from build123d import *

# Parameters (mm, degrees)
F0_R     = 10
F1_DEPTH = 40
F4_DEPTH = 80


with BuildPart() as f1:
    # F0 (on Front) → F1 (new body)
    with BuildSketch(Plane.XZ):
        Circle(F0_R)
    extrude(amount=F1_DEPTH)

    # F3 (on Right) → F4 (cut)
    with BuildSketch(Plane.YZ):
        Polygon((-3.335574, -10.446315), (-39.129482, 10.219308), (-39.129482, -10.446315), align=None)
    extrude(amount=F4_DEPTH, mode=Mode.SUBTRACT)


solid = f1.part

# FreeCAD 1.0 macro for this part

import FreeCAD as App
import Part
import Sketcher

V = App.Vector
Q = App.Units.Quantity

doc = App.newDocument("Part")
params = doc.addObject("Spreadsheet::Sheet", "Params")
for row, (alias, value) in enumerate([
    ("sketch1_diameter", "20 mm"),
    ("pad1_length", "40 mm"),
    ("pocket1_length", "80 mm"),
], start=1):
    params.set(f"A{row}", alias)
    params.set(f"B{row}", "=" + value)
    params.setAlias(f"B{row}", alias)

body = doc.addObject("PartDesign::Body", "Body")

# Sketch on XZ plane
sketch1 = body.newObject("Sketcher::SketchObject", "Sketch")
sketch1.AttachmentSupport = (doc.getObject("XZ_Plane"), [""])
sketch1.MapMode = "FlatFace"
sketch1.addGeometry(Part.Circle(V(0, 0, 0), V(0, 0, 1), 10), False)
sketch1.addConstraint([
    Sketcher.Constraint("Coincident", 0, 3, -1, 1),
    Sketcher.Constraint("Diameter", 0, 20.0),
])
sketch1.setExpression("Constraints[1]", "Params.sketch1_diameter")
pad1 = body.newObject("PartDesign::Pad", "Pad")
pad1.Profile = sketch1
pad1.setExpression("Length", "Params.pad1_length")

# Sketch on YZ plane
sketch2 = body.newObject("Sketcher::SketchObject", "Sketch001")
sketch2.AttachmentSupport = (doc.getObject("YZ_Plane"), [""])
sketch2.MapMode = "FlatFace"
sketch2.addGeometry([
    Part.LineSegment(V(-3, -10, 0), V(-39, 10, 0)),
    Part.LineSegment(V(-39, 10, 0), V(-39, -10, 0)),
    Part.LineSegment(V(-39, -10, 0), V(-3, -10, 0)),
], False)
sketch2.addConstraint([
    Sketcher.Constraint("Coincident", 0, 2, 1, 1),
    Sketcher.Constraint("Coincident", 1, 2, 2, 1),
    Sketcher.Constraint("Coincident", 2, 2, 0, 1),
    Sketcher.Constraint("Vertical", 1),
    Sketcher.Constraint("Horizontal", 2),
    Sketcher.Constraint("Angle", 0, Q("149.999999 deg")),
    Sketcher.Constraint("DistanceX", 2, 1, 2, 2, 35.793908),
    Sketcher.Constraint("DistanceX", 0, 2, -1, 1, 39.129482),
    Sketcher.Constraint("DistanceY", -1, 1, 0, 2, 10.219308),
])
pocket1 = body.newObject("PartDesign::Pocket", "Pocket")
pocket1.Profile = sketch2
pocket1.setExpression("Length", "Params.pocket1_length")
pocket1.Reversed = True

doc.recompute()
